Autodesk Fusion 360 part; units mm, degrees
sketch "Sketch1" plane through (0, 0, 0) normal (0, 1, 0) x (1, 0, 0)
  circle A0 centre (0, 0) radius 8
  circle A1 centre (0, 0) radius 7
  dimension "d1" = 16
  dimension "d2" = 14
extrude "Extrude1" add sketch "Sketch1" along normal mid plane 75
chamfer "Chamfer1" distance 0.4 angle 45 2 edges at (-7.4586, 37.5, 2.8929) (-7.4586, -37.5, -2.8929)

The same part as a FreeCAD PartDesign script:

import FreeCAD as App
import Part
import Sketcher
from FreeCAD import Vector
Q = App.Units.Quantity


def edges_at(feature, points):
    """Names of the edges that pass closest to the given points."""
    edges = feature.Shape.Edges
    near = lambda p: min(range(len(edges)), key=lambda i: edges[i].distToShape(Part.Vertex(*p))[0])
    return sorted({f"Edge{near(p) + 1}" for p in points})

doc = App.newDocument("Part")
body = doc.addObject("PartDesign::Body", "Body")

# Sketch on XZ plane
sketch1 = doc.addObject("Sketcher::SketchObject", "Sketch")
body.addObject(sketch1)
sketch1.AttachmentSupport = (doc.XZ_Plane, [""])
sketch1.MapMode = "FlatFace"
sketch1.addGeometry(Part.Circle(Vector(0, 0, 0), Vector(0, 0, 1), 8), False)
sketch1.addGeometry(Part.Circle(Vector(0, 0, 0), Vector(0, 0, 1), 7), False)
sketch1.addConstraint(Sketcher.Constraint("Coincident", 0, 3, -1, 1))
sketch1.addConstraint(Sketcher.Constraint("Coincident", 1, 3, -1, 1))
sketch1.addConstraint(Sketcher.Constraint("Diameter", 0, Q("16 mm")))
sketch1.addConstraint(Sketcher.Constraint("Diameter", 1, Q("14 mm")))
pad1 = doc.addObject("PartDesign::Pad", "Pad")
body.addObject(pad1)
pad1.Profile = sketch1
pad1.Length = 75
pad1.Midplane = True
doc.recompute()

chamfer = doc.addObject("PartDesign::Chamfer", "Chamfer")
body.addObject(chamfer)
chamfer.Base = (pad1, edges_at(pad1, [(-7.459, 37.5, 2.893), (-7.459, -37.5, -2.893)]))
chamfer.Size = 0.4

doc.recompute()
